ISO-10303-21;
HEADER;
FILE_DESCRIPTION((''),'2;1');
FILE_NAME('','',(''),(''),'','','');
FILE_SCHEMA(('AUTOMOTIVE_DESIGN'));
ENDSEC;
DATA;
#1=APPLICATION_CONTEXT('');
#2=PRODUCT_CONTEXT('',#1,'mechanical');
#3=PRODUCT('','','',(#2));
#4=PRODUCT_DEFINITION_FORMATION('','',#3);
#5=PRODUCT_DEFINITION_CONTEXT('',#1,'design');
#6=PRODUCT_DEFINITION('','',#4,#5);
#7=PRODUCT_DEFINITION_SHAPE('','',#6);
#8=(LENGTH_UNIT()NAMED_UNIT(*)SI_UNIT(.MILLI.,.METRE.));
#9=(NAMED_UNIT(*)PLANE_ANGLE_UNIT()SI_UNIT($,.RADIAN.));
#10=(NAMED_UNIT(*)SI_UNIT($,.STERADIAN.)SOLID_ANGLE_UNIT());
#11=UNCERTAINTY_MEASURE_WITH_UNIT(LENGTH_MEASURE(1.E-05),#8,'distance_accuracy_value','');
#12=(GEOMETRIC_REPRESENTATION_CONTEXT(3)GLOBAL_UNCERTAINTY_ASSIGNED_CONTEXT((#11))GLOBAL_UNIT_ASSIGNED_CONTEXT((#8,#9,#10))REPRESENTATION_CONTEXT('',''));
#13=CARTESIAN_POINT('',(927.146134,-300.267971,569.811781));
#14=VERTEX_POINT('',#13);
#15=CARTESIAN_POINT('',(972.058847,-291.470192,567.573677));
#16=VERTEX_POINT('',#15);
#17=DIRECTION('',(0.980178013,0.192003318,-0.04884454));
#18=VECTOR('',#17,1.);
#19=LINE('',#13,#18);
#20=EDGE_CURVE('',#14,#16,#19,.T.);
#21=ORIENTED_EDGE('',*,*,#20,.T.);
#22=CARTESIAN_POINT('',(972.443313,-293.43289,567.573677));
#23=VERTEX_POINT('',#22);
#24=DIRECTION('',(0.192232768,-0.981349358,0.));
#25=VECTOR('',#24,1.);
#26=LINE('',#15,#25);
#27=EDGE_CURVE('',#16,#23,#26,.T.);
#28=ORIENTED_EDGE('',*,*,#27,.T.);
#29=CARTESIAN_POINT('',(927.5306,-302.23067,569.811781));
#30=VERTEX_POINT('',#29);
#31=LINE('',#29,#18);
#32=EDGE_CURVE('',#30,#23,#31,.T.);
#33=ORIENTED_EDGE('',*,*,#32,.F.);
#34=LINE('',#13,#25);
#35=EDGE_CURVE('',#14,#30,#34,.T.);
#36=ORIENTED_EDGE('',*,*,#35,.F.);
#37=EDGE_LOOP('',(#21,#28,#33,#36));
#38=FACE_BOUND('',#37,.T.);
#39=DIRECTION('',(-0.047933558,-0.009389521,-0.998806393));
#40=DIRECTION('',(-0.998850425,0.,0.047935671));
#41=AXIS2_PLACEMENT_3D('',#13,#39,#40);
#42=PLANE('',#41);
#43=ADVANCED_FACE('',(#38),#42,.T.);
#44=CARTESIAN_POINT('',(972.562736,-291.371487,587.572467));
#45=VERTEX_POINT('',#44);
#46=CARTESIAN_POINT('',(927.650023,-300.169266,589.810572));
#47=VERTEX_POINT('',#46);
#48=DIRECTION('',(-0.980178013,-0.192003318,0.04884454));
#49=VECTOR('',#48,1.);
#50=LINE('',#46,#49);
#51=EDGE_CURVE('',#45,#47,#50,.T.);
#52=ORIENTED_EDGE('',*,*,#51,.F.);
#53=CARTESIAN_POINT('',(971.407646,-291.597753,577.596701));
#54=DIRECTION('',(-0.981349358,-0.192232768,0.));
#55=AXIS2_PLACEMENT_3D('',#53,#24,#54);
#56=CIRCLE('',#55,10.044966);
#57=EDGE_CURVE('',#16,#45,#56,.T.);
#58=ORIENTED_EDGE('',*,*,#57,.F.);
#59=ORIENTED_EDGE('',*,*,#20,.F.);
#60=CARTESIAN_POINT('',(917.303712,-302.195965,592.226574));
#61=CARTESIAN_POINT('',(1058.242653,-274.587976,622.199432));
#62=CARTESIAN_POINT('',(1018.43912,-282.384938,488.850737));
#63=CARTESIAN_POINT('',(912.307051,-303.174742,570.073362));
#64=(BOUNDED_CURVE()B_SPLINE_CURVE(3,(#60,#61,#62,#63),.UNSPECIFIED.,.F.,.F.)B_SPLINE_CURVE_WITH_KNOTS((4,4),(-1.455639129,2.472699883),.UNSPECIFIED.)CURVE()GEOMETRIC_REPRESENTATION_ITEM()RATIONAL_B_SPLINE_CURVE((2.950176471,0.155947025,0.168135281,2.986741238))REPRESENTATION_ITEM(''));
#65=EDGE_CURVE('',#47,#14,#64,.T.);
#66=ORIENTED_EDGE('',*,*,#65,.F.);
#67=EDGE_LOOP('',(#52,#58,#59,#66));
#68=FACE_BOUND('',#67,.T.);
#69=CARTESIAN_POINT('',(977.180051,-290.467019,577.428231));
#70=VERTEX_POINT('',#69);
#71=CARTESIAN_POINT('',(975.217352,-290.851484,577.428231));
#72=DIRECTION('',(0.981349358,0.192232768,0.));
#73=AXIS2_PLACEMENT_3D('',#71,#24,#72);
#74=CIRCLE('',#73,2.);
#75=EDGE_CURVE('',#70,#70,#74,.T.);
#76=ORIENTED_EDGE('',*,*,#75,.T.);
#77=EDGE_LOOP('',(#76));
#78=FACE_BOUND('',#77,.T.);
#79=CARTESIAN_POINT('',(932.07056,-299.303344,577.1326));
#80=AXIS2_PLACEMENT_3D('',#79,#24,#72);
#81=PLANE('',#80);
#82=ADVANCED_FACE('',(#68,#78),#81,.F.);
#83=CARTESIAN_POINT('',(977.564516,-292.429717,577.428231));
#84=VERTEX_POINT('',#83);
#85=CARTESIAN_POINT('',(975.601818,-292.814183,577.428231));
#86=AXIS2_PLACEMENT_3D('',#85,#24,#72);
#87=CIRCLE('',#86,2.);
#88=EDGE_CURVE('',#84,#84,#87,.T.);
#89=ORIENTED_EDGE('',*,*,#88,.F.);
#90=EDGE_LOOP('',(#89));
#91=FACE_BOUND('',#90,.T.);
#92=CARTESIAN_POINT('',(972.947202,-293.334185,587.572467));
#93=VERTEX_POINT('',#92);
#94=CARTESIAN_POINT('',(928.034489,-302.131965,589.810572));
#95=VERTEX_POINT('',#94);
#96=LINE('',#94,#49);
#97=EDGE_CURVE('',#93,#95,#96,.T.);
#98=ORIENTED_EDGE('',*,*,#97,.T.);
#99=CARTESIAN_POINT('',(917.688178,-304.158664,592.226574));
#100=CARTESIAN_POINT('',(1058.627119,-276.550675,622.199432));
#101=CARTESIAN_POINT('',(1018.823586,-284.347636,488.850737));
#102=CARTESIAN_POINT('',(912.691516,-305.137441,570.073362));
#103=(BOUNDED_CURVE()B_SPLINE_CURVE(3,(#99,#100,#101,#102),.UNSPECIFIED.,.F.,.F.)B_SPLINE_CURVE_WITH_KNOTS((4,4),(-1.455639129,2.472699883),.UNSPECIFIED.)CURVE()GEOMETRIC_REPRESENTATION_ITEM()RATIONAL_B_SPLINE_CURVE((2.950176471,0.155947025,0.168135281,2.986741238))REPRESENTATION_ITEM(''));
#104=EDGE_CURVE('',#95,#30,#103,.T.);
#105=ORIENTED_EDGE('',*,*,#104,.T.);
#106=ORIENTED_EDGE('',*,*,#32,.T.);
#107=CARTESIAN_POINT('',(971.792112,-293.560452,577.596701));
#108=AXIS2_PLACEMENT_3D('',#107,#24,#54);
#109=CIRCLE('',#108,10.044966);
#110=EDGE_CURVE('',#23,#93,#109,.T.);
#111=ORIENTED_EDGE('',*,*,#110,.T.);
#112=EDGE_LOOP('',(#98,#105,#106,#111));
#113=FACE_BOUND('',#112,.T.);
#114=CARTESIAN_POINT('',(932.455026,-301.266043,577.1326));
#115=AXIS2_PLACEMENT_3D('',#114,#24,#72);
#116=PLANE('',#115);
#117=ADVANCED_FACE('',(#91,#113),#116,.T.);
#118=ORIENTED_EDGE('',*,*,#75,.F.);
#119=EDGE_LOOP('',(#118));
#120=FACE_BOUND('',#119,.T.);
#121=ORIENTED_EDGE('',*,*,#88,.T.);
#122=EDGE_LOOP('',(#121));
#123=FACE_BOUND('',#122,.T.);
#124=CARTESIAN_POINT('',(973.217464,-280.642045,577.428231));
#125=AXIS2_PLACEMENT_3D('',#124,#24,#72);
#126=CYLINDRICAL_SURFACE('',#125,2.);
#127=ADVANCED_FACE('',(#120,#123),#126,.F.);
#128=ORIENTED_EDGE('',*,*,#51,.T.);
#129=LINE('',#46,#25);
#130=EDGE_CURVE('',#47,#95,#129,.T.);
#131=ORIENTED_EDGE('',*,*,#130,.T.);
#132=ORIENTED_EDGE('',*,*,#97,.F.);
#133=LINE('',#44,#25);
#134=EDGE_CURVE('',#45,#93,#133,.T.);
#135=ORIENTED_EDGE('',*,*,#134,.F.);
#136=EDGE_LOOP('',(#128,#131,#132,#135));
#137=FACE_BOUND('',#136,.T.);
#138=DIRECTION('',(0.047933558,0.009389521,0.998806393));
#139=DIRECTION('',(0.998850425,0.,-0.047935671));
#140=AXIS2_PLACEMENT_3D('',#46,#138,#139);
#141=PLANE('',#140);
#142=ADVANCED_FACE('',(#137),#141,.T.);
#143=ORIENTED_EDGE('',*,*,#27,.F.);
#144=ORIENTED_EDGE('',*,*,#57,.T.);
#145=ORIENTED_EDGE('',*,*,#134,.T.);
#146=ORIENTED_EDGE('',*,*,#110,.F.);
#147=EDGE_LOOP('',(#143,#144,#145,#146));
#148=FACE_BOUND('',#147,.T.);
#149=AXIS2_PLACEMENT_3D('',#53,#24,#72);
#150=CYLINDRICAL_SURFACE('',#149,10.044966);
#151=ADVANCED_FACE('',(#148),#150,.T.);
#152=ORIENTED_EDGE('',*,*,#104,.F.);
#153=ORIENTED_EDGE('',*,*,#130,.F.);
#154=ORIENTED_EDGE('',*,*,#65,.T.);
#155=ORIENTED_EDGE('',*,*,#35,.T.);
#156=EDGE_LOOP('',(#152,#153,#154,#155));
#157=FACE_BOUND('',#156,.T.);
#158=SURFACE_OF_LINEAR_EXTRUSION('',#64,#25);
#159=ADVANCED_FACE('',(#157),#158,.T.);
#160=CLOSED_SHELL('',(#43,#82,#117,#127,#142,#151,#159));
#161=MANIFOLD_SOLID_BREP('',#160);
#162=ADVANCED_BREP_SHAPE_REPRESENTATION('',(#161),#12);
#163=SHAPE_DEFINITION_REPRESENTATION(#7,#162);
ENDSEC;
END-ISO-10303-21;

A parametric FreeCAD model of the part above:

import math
import FreeCAD as App
import Part
import Sketcher
from FreeCAD import Vector

doc = App.newDocument("Part")
body = doc.addObject("PartDesign::Body", "Body")

# Sketch on an angled plane
sketch1 = body.newObject("Sketcher::SketchObject", "Sketch")
sketch1.Placement = App.Placement(Vector(91.002156, -464.566516, 0), App.Rotation(Vector(-0.981349358, -0.192232768, 0), Vector(0, 0, -1), Vector(0.192232768, -0.981349358, 0), "ZXY"))
sketch1.addGeometry([
    Part.LineSegment(Vector(-898.412669, -587.572467, 0), Vector(-852.646386, -589.810571, 0)),
    Part.BSplineCurve([Vector(-852.646386, -589.810571, 0), Vector(-859.599431, -584.423041, 0), Vector(-860.017825, -575.312195, 0), Vector(-852.13292, -569.811781, 0)], [4, 4], [-0.289090194, 0.984325659], False, 3, [1.203316353, 0.837838315, 0.76726036, 0.991582488], False),
    Part.LineSegment(Vector(-852.13292, -569.811781, 0), Vector(-897.899204, -567.573676, 0)),
    Part.ArcOfCircle(Part.Circle(Vector(-897.235627, -577.5967, 0), Vector(0, 0, 1), 10.044966), math.radians(93.787756), math.radians(263.270773)),
], False)
sketch1.addConstraint([
    Sketcher.Constraint("Block", 1),
    Sketcher.Constraint("Coincident", 0, 2, 1, 1),
    Sketcher.Constraint("Coincident", 1, 2, 2, 1),
    Sketcher.Constraint("Coincident", 2, 2, 3, 1),
    Sketcher.Constraint("Coincident", 3, 2, 0, 1),
    Sketcher.Constraint("Parallel", 0, 2),
    Sketcher.Constraint("Equal", 0, 2),
    Sketcher.Constraint("Radius", 3, 10.044966),
    Sketcher.Constraint("DistanceY", 3, 3, -1, 1, 577.5967),
    Sketcher.Constraint("DistanceX", 3, 2, -1, 1, 898.412669),
])
pad1 = body.newObject("PartDesign::Pad", "Pad")
pad1.Profile = sketch1
pad1.Type = "TwoLengths"
pad1.Length = 1.5
pad1.Length2 = 0.5

# Sketch on an angled plane
sketch2 = body.newObject("Sketcher::SketchObject", "Sketch001")
sketch2.Placement = App.Placement(Vector(91.290505, -466.03854, 0), App.Rotation(Vector(-0.981349358, -0.192232768, 0), Vector(0, 0, -1), Vector(0.192232768, -0.981349358, 0), "ZXY"))
sketch2.addGeometry(Part.Circle(Vector(-901.1, -577.4, 0), Vector(0, 0, 1), 2), False)
sketch2.addConstraint([
    Sketcher.Constraint("Diameter", 0, 4.0),
    Sketcher.Constraint("DistanceY", 0, 3, -1, 1, 577.428231),
    Sketcher.Constraint("DistanceX", 0, 3, -1, 1, 901.117736),
])
pocket1 = body.newObject("PartDesign::Pocket", "Pocket")
pocket1.Profile = sketch2
pocket1.Type = "ThroughAll"

doc.recompute()
